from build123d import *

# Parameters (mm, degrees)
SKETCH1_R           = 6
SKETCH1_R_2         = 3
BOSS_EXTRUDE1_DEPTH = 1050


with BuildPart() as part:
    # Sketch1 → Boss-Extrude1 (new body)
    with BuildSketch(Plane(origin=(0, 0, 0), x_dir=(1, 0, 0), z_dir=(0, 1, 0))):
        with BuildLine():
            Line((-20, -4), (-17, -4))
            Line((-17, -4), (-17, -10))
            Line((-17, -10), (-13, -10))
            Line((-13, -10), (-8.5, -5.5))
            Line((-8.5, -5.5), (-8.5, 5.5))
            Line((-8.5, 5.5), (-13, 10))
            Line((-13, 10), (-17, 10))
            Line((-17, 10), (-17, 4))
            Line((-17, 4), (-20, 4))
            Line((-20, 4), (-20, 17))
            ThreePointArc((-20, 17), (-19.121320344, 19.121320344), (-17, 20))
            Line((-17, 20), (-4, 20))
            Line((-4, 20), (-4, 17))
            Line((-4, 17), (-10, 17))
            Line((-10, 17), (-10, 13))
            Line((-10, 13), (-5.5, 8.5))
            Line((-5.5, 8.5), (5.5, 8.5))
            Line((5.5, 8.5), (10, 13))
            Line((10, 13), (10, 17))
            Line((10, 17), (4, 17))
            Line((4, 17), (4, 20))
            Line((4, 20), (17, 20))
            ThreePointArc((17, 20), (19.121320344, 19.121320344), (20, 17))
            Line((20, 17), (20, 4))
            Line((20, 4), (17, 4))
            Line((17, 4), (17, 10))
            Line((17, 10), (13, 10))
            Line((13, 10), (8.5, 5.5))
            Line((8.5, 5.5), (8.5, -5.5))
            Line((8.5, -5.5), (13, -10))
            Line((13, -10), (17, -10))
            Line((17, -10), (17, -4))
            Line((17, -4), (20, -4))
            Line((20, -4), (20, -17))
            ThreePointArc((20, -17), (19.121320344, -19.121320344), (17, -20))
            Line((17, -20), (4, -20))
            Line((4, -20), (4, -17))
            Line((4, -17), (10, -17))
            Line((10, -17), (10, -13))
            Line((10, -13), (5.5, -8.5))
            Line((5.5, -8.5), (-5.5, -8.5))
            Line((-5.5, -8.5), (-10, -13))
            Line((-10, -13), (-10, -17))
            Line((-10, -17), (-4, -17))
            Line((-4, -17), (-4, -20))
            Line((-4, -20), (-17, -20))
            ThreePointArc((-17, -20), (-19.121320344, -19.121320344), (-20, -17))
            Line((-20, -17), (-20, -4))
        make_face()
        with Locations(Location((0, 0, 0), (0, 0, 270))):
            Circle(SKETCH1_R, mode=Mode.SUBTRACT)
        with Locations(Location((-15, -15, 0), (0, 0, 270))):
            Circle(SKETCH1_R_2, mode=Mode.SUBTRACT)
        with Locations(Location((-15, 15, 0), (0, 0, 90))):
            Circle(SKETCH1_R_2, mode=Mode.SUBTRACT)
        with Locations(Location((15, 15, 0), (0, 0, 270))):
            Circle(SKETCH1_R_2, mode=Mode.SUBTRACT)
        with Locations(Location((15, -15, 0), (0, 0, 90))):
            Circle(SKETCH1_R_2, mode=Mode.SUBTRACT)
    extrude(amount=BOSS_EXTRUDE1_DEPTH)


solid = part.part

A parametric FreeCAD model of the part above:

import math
import FreeCAD as App
import Part
import Sketcher
from FreeCAD import Vector
Q = App.Units.Quantity

doc = App.newDocument("Part")
body = doc.addObject("PartDesign::Body", "Body")

# Sketch on XZ plane
sketch1 = body.newObject("Sketcher::SketchObject", "Sketch")
sketch1.AttachmentSupport = (doc.getObject("XZ_Plane"), [""])
sketch1.MapMode = "FlatFace"
sketch1.addGeometry(Part.LineSegment(Vector(-17, 4, 0), Vector(-20, 4, 0)), False)
sketch1.addGeometry(Part.LineSegment(Vector(-20, 4, 0), Vector(-20, 17, 0)), False)
sketch1.addGeometry(Part.ArcOfCircle(Part.Circle(Vector(-17, 17, 0), Vector(0, 0, 1), 3), math.radians(90), math.radians(180)), False)
sketch1.addGeometry(Part.LineSegment(Vector(-17, 20, 0), Vector(-4, 20, 0)), False)
sketch1.addGeometry(Part.LineSegment(Vector(-4, 20, 0), Vector(-4, 17, 0)), False)
sketch1.addGeometry(Part.LineSegment(Vector(-4, 17, 0), Vector(-10, 17, 0)), False)
sketch1.addGeometry(Part.LineSegment(Vector(-10, 17, 0), Vector(-10, 13, 0)), False)
sketch1.addGeometry(Part.LineSegment(Vector(-10, 13, 0), Vector(-5.5, 8.5, 0)), False)
sketch1.addGeometry(Part.LineSegment(Vector(-5.5, 8.5, 0), Vector(5.5, 8.5, 0)), False)
sketch1.addGeometry(Part.LineSegment(Vector(5.5, 8.5, 0), Vector(10, 13, 0)), False)
sketch1.addGeometry(Part.LineSegment(Vector(10, 13, 0), Vector(10, 17, 0)), False)
sketch1.addGeometry(Part.LineSegment(Vector(10, 17, 0), Vector(4, 17, 0)), False)
sketch1.addGeometry(Part.LineSegment(Vector(4, 17, 0), Vector(4, 20, 0)), False)
sketch1.addGeometry(Part.LineSegment(Vector(4, 20, 0), Vector(17, 20, 0)), False)
sketch1.addGeometry(Part.ArcOfCircle(Part.Circle(Vector(17, 17, 0), Vector(0, 0, 1), 3), math.radians(0), math.radians(90)), False)
sketch1.addGeometry(Part.LineSegment(Vector(20, 17, 0), Vector(20, 4, 0)), False)
sketch1.addGeometry(Part.LineSegment(Vector(20, 4, 0), Vector(17, 4, 0)), False)
sketch1.addGeometry(Part.LineSegment(Vector(17, 4, 0), Vector(17, 10, 0)), False)
sketch1.addGeometry(Part.LineSegment(Vector(17, 10, 0), Vector(13, 10, 0)), False)
sketch1.addGeometry(Part.LineSegment(Vector(13, 10, 0), Vector(8.5, 5.5, 0)), False)
sketch1.addGeometry(Part.LineSegment(Vector(8.5, 5.5, 0), Vector(8.5, -5.5, 0)), False)
sketch1.addGeometry(Part.LineSegment(Vector(8.5, -5.5, 0), Vector(13, -10, 0)), False)
sketch1.addGeometry(Part.LineSegment(Vector(13, -10, 0), Vector(17, -10, 0)), False)
sketch1.addGeometry(Part.LineSegment(Vector(17, -10, 0), Vector(17, -4, 0)), False)
sketch1.addGeometry(Part.LineSegment(Vector(17, -4, 0), Vector(20, -4, 0)), False)
sketch1.addGeometry(Part.LineSegment(Vector(20, -4, 0), Vector(20, -17, 0)), False)
sketch1.addGeometry(Part.ArcOfCircle(Part.Circle(Vector(17, -17, 0), Vector(0, 0, 1), 3), math.radians(-90), math.radians(0)), False)
sketch1.addGeometry(Part.LineSegment(Vector(17, -20, 0), Vector(4, -20, 0)), False)
sketch1.addGeometry(Part.LineSegment(Vector(4, -20, 0), Vector(4, -17, 0)), False)
sketch1.addGeometry(Part.LineSegment(Vector(4, -17, 0), Vector(10, -17, 0)), False)
sketch1.addGeometry(Part.LineSegment(Vector(10, -17, 0), Vector(10, -13, 0)), False)
sketch1.addGeometry(Part.LineSegment(Vector(10, -13, 0), Vector(5.5, -8.5, 0)), False)
sketch1.addGeometry(Part.LineSegment(Vector(5.5, -8.5, 0), Vector(-5.5, -8.5, 0)), False)
sketch1.addGeometry(Part.LineSegment(Vector(-5.5, -8.5, 0), Vector(-10, -13, 0)), False)
sketch1.addGeometry(Part.LineSegment(Vector(-10, -13, 0), Vector(-10, -17, 0)), False)
sketch1.addGeometry(Part.LineSegment(Vector(-10, -17, 0), Vector(-4, -17, 0)), False)
sketch1.addGeometry(Part.LineSegment(Vector(-4, -17, 0), Vector(-4, -20, 0)), False)
sketch1.addGeometry(Part.LineSegment(Vector(-4, -20, 0), Vector(-17, -20, 0)), False)
sketch1.addGeometry(Part.ArcOfCircle(Part.Circle(Vector(-17, -17, 0), Vector(0, 0, 1), 3), math.radians(180), math.radians(270)), False)
sketch1.addGeometry(Part.LineSegment(Vector(-20, -17, 0), Vector(-20, -4, 0)), False)
sketch1.addGeometry(Part.LineSegment(Vector(-20, -4, 0), Vector(-17, -4, 0)), False)
sketch1.addGeometry(Part.LineSegment(Vector(-17, -4, 0), Vector(-17, -10, 0)), False)
sketch1.addGeometry(Part.LineSegment(Vector(-17, -10, 0), Vector(-13, -10, 0)), False)
sketch1.addGeometry(Part.LineSegment(Vector(-13, -10, 0), Vector(-8.5, -5.5, 0)), False)
sketch1.addGeometry(Part.LineSegment(Vector(-8.5, -5.5, 0), Vector(-8.5, 5.5, 0)), False)
sketch1.addGeometry(Part.LineSegment(Vector(-8.5, 5.5, 0), Vector(-13, 10, 0)), False)
sketch1.addGeometry(Part.LineSegment(Vector(-13, 10, 0), Vector(-17, 10, 0)), False)
sketch1.addGeometry(Part.LineSegment(Vector(-17, 10, 0), Vector(-17, 4, 0)), False)
sketch1.addGeometry(Part.Circle(Vector(15, 15, 0), Vector(0, 0, 1), 3), False)
sketch1.addGeometry(Part.Circle(Vector(-15, 15, 0), Vector(0, 0, 1), 3), False)
sketch1.addGeometry(Part.Circle(Vector(15, -15, 0), Vector(0, 0, 1), 3), False)
sketch1.addGeometry(Part.Circle(Vector(0, 0, 0), Vector(0, 0, 1), 6), False)
sketch1.addGeometry(Part.Circle(Vector(-15, -15, 0), Vector(0, 0, 1), 3), False)
sketch1.addConstraint(Sketcher.Constraint("Coincident", 0, 2, 1, 1))
sketch1.addConstraint(Sketcher.Constraint("Tangent", 1, 2, 2, 2))
sketch1.addConstraint(Sketcher.Constraint("Tangent", 2, 1, 3, 1))
sketch1.addConstraint(Sketcher.Constraint("Coincident", 3, 2, 4, 1))
sketch1.addConstraint(Sketcher.Constraint("Coincident", 4, 2, 5, 1))
sketch1.addConstraint(Sketcher.Constraint("Coincident", 5, 2, 6, 1))
sketch1.addConstraint(Sketcher.Constraint("Coincident", 6, 2, 7, 1))
sketch1.addConstraint(Sketcher.Constraint("Coincident", 7, 2, 8, 1))
sketch1.addConstraint(Sketcher.Constraint("Coincident", 8, 2, 9, 1))
sketch1.addConstraint(Sketcher.Constraint("Coincident", 9, 2, 10, 1))
sketch1.addConstraint(Sketcher.Constraint("Coincident", 10, 2, 11, 1))
sketch1.addConstraint(Sketcher.Constraint("Coincident", 11, 2, 12, 1))
sketch1.addConstraint(Sketcher.Constraint("Coincident", 12, 2, 13, 1))
sketch1.addConstraint(Sketcher.Constraint("Tangent", 13, 2, 14, 2))
sketch1.addConstraint(Sketcher.Constraint("Tangent", 14, 1, 15, 1))
sketch1.addConstraint(Sketcher.Constraint("Coincident", 15, 2, 16, 1))
sketch1.addConstraint(Sketcher.Constraint("Coincident", 16, 2, 17, 1))
sketch1.addConstraint(Sketcher.Constraint("Coincident", 17, 2, 18, 1))
sketch1.addConstraint(Sketcher.Constraint("Coincident", 18, 2, 19, 1))
sketch1.addConstraint(Sketcher.Constraint("Coincident", 19, 2, 20, 1))
sketch1.addConstraint(Sketcher.Constraint("Coincident", 20, 2, 21, 1))
sketch1.addConstraint(Sketcher.Constraint("Coincident", 21, 2, 22, 1))
sketch1.addConstraint(Sketcher.Constraint("Coincident", 22, 2, 23, 1))
sketch1.addConstraint(Sketcher.Constraint("Coincident", 23, 2, 24, 1))
sketch1.addConstraint(Sketcher.Constraint("Coincident", 24, 2, 25, 1))
sketch1.addConstraint(Sketcher.Constraint("Tangent", 25, 2, 26, 2))
sketch1.addConstraint(Sketcher.Constraint("Tangent", 26, 1, 27, 1))
sketch1.addConstraint(Sketcher.Constraint("Coincident", 27, 2, 28, 1))
sketch1.addConstraint(Sketcher.Constraint("Coincident", 28, 2, 29, 1))
sketch1.addConstraint(Sketcher.Constraint("Coincident", 29, 2, 30, 1))
sketch1.addConstraint(Sketcher.Constraint("Coincident", 30, 2, 31, 1))
sketch1.addConstraint(Sketcher.Constraint("Coincident", 31, 2, 32, 1))
sketch1.addConstraint(Sketcher.Constraint("Coincident", 32, 2, 33, 1))
sketch1.addConstraint(Sketcher.Constraint("Coincident", 33, 2, 34, 1))
sketch1.addConstraint(Sketcher.Constraint("Coincident", 34, 2, 35, 1))
sketch1.addConstraint(Sketcher.Constraint("Coincident", 35, 2, 36, 1))
sketch1.addConstraint(Sketcher.Constraint("Coincident", 36, 2, 37, 1))
sketch1.addConstraint(Sketcher.Constraint("Tangent", 37, 2, 38, 2))
sketch1.addConstraint(Sketcher.Constraint("Tangent", 38, 1, 39, 1))
sketch1.addConstraint(Sketcher.Constraint("Coincident", 39, 2, 40, 1))
sketch1.addConstraint(Sketcher.Constraint("Coincident", 40, 2, 41, 1))
sketch1.addConstraint(Sketcher.Constraint("Coincident", 41, 2, 42, 1))
sketch1.addConstraint(Sketcher.Constraint("Coincident", 42, 2, 43, 1))
sketch1.addConstraint(Sketcher.Constraint("Coincident", 43, 2, 44, 1))
sketch1.addConstraint(Sketcher.Constraint("Coincident", 44, 2, 45, 1))
sketch1.addConstraint(Sketcher.Constraint("Coincident", 45, 2, 46, 1))
sketch1.addConstraint(Sketcher.Constraint("Coincident", 46, 2, 47, 1))
sketch1.addConstraint(Sketcher.Constraint("Coincident", 47, 2, 0, 1))
sketch1.addConstraint(Sketcher.Constraint("Horizontal", 0))
sketch1.addConstraint(Sketcher.Constraint("Vertical", 1))
sketch1.addConstraint(Sketcher.Constraint("Horizontal", 3))
sketch1.addConstraint(Sketcher.Constraint("Vertical", 4))
sketch1.addConstraint(Sketcher.Constraint("Horizontal", 5))
sketch1.addConstraint(Sketcher.Constraint("Vertical", 6))
sketch1.addConstraint(Sketcher.Constraint("Horizontal", 8))
sketch1.addConstraint(Sketcher.Constraint("Vertical", 10))
sketch1.addConstraint(Sketcher.Constraint("Horizontal", 11))
sketch1.addConstraint(Sketcher.Constraint("Vertical", 12))
sketch1.addConstraint(Sketcher.Constraint("Horizontal", 13))
sketch1.addConstraint(Sketcher.Constraint("Vertical", 15))
sketch1.addConstraint(Sketcher.Constraint("Horizontal", 16))
sketch1.addConstraint(Sketcher.Constraint("Vertical", 17))
sketch1.addConstraint(Sketcher.Constraint("Horizontal", 18))
sketch1.addConstraint(Sketcher.Constraint("Vertical", 20))
sketch1.addConstraint(Sketcher.Constraint("Horizontal", 22))
sketch1.addConstraint(Sketcher.Constraint("Vertical", 23))
sketch1.addConstraint(Sketcher.Constraint("Horizontal", 24))
sketch1.addConstraint(Sketcher.Constraint("Vertical", 25))
sketch1.addConstraint(Sketcher.Constraint("Horizontal", 27))
sketch1.addConstraint(Sketcher.Constraint("Vertical", 28))
sketch1.addConstraint(Sketcher.Constraint("Horizontal", 29))
sketch1.addConstraint(Sketcher.Constraint("Vertical", 30))
sketch1.addConstraint(Sketcher.Constraint("Horizontal", 32))
sketch1.addConstraint(Sketcher.Constraint("Vertical", 34))
sketch1.addConstraint(Sketcher.Constraint("Horizontal", 35))
sketch1.addConstraint(Sketcher.Constraint("Vertical", 36))
sketch1.addConstraint(Sketcher.Constraint("Horizontal", 37))
sketch1.addConstraint(Sketcher.Constraint("Vertical", 39))
sketch1.addConstraint(Sketcher.Constraint("Horizontal", 40))
sketch1.addConstraint(Sketcher.Constraint("Vertical", 41))
sketch1.addConstraint(Sketcher.Constraint("Horizontal", 42))
sketch1.addConstraint(Sketcher.Constraint("Vertical", 44))
sketch1.addConstraint(Sketcher.Constraint("Horizontal", 46))
sketch1.addConstraint(Sketcher.Constraint("Vertical", 47))
sketch1.addConstraint(Sketcher.Constraint("Coincident", 51, 3, -1, 1))
sketch1.addConstraint(Sketcher.Constraint("Equal", 2, 14))
sketch1.addConstraint(Sketcher.Constraint("Equal", 14, 26))
sketch1.addConstraint(Sketcher.Constraint("Equal", 26, 38))
sketch1.addConstraint(Sketcher.Constraint("Equal", 38, 48))
sketch1.addConstraint(Sketcher.Constraint("Equal", 48, 49))
sketch1.addConstraint(Sketcher.Constraint("Equal", 49, 50))
sketch1.addConstraint(Sketcher.Constraint("Equal", 50, 52))
sketch1.addConstraint(Sketcher.Constraint("Symmetric", 2, 3, 26, 3, -1, 1))
sketch1.addConstraint(Sketcher.Constraint("Symmetric", 14, 3, 38, 3, -1, 1))
sketch1.addConstraint(Sketcher.Constraint("Symmetric", 49, 3, 50, 3, -1, 1))
sketch1.addConstraint(Sketcher.Constraint("Symmetric", 48, 3, 52, 3, -1, 1))
sketch1.addConstraint(Sketcher.Constraint("Symmetric", 4, 2, 28, 2, -1, 1))
sketch1.addConstraint(Sketcher.Constraint("Symmetric", 6, 2, 30, 2, -1, 1))
sketch1.addConstraint(Sketcher.Constraint("Symmetric", 7, 2, 31, 2, -1, 1))
sketch1.addConstraint(Sketcher.Constraint("Symmetric", 9, 2, 33, 2, -1, 1))
sketch1.addConstraint(Sketcher.Constraint("Symmetric", 11, 2, 35, 2, -1, 1))
sketch1.addConstraint(Sketcher.Constraint("Symmetric", 16, 2, 40, 2, -1, 1))
sketch1.addConstraint(Sketcher.Constraint("Symmetric", 18, 2, 42, 2, -1, 1))
sketch1.addConstraint(Sketcher.Constraint("Symmetric", 19, 2, 43, 2, -1, 1))
sketch1.addConstraint(Sketcher.Constraint("Symmetric", 21, 2, 45, 2, -1, 1))
sketch1.addConstraint(Sketcher.Constraint("Symmetric", 23, 2, 47, 2, -1, 1))
sketch1.addConstraint(Sketcher.Constraint("Symmetric", 2, 3, 14, 3, -2))
sketch1.addConstraint(Sketcher.Constraint("Symmetric", 48, 3, 49, 3, -2))
sketch1.addConstraint(Sketcher.Constraint("Symmetric", 6, 2, 9, 2, -2))
sketch1.addConstraint(Sketcher.Constraint("Symmetric", 4, 2, 11, 2, -2))
sketch1.addConstraint(Sketcher.Constraint("Symmetric", 23, 2, 40, 2, -2))
sketch1.addConstraint(Sketcher.Constraint("Symmetric", 21, 2, 42, 2, -2))
sketch1.addConstraint(Sketcher.Constraint("Perpendicular", 7, 9))
sketch1.addConstraint(Sketcher.Constraint("Parallel", 9, 19))
sketch1.addConstraint(Sketcher.Constraint("Perpendicular", 19, 21))
sketch1.addConstraint(Sketcher.Constraint("Perpendicular", 31, 33))
sketch1.addConstraint(Sketcher.Constraint("Perpendicular", 43, 45))
sketch1.addConstraint(Sketcher.Constraint("Horizontal", 1, 2, 4, 2))
sketch1.addConstraint(Sketcher.Constraint("Horizontal", 20, 2, 43, 2))
sketch1.addConstraint(Sketcher.Constraint("Vertical", 13, 2, 16, 2))
sketch1.addConstraint(Sketcher.Constraint("Equal", 37, 1))
sketch1.addConstraint(Sketcher.Constraint("Equal", 46, 6))
sketch1.addConstraint(Sketcher.Constraint("Equal", 35, 17))
sketch1.addConstraint(Sketcher.Constraint("Equal", 32, 20))
sketch1.addConstraint(Sketcher.Constraint("Equal", 9, 19))
sketch1.addConstraint(Sketcher.Constraint("Diameter", 48, Q("6 mm")))
sketch1.addConstraint(Sketcher.Constraint("Diameter", 51, Q("12 mm")))
sketch1.addConstraint(Sketcher.Constraint("DistanceX", 3, 1, 3, 2, Q("13 mm")))
sketch1.addConstraint(Sketcher.Constraint("DistanceX", 5, 2, 5, 1, Q("6 mm")))
sketch1.addConstraint(Sketcher.Constraint("DistanceX", 8, 1, 8, 2, Q("11 mm")))
sketch1.addConstraint(Sketcher.Constraint("DistanceX", 18, 2, 18, 1, Q("4 mm")))
sketch1.addConstraint(Sketcher.Constraint("DistanceX", 2, 3, -1, 1, Q("17 mm")))
sketch1.addConstraint(Sketcher.Constraint("DistanceX", -1, 1, 48, 3, Q("15 mm")))
sketch1.addConstraint(Sketcher.Constraint("DistanceY", -1, 1, 48, 3, Q("15 mm")))
pad1 = body.newObject("PartDesign::Pad", "Pad")
pad1.Profile = sketch1
pad1.Length = 1050
pad1.Reversed = True

doc.recompute()
